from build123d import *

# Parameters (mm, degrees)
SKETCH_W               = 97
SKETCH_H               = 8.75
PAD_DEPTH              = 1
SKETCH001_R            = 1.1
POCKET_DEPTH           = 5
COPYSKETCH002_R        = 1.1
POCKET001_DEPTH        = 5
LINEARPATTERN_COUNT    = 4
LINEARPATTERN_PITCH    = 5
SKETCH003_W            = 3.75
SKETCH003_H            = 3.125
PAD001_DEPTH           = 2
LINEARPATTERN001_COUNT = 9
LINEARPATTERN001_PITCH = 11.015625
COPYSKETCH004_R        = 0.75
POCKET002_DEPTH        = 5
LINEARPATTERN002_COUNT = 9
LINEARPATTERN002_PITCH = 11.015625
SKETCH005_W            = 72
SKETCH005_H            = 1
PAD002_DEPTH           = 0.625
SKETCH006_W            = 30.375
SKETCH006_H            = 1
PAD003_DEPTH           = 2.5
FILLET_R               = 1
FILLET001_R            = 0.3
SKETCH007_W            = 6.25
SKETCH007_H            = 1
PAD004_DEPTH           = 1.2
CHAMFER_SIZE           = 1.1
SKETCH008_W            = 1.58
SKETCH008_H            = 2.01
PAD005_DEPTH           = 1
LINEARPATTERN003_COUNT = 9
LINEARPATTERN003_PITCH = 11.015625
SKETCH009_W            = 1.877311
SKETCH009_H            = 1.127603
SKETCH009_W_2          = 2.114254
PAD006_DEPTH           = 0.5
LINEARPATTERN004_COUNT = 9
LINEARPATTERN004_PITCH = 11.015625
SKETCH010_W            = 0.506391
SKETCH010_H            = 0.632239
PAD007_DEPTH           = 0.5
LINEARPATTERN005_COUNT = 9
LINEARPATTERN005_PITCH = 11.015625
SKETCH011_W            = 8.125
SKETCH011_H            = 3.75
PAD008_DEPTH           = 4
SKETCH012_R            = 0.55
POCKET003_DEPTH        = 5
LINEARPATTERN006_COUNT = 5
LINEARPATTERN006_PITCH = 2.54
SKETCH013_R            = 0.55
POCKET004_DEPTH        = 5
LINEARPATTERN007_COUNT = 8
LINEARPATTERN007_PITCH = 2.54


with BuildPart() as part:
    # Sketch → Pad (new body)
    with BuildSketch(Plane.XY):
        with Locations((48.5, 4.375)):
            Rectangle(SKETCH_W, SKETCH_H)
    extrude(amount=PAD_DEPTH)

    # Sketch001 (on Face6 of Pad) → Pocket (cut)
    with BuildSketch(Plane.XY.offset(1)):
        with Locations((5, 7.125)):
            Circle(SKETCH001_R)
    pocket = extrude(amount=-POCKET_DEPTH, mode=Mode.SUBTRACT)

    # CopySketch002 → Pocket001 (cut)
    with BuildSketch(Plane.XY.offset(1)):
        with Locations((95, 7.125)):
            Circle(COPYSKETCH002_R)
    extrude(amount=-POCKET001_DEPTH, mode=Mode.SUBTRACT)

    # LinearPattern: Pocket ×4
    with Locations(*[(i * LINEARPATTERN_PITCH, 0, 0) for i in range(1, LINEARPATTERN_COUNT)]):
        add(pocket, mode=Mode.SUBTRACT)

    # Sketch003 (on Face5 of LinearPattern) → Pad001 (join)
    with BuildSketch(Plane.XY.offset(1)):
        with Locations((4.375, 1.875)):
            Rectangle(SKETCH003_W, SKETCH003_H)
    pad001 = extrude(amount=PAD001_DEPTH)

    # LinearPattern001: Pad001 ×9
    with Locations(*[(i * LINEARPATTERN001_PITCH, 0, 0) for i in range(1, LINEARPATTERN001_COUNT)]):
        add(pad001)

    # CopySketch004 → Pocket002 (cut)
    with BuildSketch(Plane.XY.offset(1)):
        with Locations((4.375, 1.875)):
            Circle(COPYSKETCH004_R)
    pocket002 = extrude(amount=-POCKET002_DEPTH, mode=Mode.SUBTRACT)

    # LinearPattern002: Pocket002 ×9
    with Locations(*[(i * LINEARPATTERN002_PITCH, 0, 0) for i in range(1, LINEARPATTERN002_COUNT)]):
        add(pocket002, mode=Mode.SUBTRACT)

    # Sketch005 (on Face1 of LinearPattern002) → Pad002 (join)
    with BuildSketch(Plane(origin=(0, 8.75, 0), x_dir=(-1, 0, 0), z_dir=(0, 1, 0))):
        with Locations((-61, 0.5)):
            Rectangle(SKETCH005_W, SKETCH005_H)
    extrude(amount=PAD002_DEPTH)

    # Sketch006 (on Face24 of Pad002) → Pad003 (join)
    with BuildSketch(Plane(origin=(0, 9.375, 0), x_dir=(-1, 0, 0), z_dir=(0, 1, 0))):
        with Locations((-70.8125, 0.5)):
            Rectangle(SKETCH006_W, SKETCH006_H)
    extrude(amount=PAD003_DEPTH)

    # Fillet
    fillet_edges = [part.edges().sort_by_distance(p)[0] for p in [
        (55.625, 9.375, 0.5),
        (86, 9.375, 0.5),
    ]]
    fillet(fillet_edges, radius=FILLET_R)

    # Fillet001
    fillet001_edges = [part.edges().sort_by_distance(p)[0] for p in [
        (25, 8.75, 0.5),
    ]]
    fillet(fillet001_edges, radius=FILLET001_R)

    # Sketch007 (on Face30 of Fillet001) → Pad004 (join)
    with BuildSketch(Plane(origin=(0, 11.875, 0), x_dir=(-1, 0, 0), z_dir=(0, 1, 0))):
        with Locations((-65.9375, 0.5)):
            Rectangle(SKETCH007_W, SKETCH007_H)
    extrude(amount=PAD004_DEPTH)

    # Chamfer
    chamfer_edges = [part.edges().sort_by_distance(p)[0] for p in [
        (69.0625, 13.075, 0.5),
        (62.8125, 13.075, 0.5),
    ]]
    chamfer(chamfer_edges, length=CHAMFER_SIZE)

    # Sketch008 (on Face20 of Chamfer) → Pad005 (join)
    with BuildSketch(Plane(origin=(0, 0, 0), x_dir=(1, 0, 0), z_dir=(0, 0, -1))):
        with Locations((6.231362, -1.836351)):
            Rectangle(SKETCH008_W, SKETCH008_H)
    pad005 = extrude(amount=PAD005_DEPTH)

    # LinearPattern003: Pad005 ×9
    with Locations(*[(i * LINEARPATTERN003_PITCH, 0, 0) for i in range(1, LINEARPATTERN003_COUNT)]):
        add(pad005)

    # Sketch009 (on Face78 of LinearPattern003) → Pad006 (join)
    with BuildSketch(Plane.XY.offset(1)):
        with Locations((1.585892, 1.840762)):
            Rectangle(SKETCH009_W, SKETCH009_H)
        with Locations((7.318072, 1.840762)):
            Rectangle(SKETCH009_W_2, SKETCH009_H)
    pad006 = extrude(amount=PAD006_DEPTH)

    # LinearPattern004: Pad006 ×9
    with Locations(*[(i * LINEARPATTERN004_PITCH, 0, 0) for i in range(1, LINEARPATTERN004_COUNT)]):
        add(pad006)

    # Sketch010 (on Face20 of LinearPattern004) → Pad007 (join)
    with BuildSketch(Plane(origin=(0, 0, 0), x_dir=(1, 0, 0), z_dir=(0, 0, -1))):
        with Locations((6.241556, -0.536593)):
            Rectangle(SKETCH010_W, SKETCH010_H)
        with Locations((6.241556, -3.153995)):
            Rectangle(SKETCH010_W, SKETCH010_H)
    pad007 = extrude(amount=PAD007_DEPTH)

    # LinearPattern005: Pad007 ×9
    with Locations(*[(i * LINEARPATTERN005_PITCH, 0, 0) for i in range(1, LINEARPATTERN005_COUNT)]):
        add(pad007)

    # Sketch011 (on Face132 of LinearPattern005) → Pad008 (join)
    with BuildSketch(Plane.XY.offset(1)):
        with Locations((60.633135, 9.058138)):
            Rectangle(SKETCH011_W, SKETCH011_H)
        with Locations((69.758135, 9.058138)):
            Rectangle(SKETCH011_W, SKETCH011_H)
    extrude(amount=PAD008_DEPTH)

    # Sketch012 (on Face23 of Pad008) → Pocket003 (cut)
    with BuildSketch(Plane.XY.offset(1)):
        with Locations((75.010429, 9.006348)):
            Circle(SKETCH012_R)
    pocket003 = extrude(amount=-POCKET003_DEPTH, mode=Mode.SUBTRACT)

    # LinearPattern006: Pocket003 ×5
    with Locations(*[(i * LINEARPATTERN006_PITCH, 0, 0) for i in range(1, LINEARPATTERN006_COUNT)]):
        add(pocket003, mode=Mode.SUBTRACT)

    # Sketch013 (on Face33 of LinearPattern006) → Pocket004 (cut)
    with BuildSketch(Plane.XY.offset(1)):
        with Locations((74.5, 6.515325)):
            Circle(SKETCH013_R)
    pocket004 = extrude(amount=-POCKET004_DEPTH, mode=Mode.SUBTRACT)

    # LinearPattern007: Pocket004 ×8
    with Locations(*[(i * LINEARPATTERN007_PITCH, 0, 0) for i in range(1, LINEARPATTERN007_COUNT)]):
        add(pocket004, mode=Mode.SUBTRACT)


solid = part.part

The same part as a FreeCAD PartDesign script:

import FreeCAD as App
import Part
import Sketcher
from FreeCAD import Vector
Q = App.Units.Quantity


def edges_at(feature, points):
    """Names of the edges that pass closest to the given points."""
    edges = feature.Shape.Edges
    near = lambda p: min(range(len(edges)), key=lambda i: edges[i].distToShape(Part.Vertex(*p))[0])
    return sorted({f"Edge{near(p) + 1}" for p in points})

doc = App.newDocument("Part")
body = doc.addObject("PartDesign::Body", "Body")

sketch1 = body.newObject("Sketcher::SketchObject", "Sketch")
sketch1.AttachmentSupport = (doc.getObject("XY_Plane"), [""])
sketch1.MapMode = "FlatFace"
sketch1.addGeometry(Part.LineSegment(Vector(0, 8.75, 0), Vector(0, 0, 0)), False)
sketch1.addGeometry(Part.LineSegment(Vector(0, 0, 0), Vector(97, 0, 0)), False)
sketch1.addGeometry(Part.LineSegment(Vector(97, 0, 0), Vector(97, 8.75, 0)), False)
sketch1.addGeometry(Part.LineSegment(Vector(97, 8.75, 0), Vector(0, 8.75, 0)), False)
sketch1.addConstraint(Sketcher.Constraint("Coincident", 0, 2, 1, 1))
sketch1.addConstraint(Sketcher.Constraint("Coincident", 1, 2, 2, 1))
sketch1.addConstraint(Sketcher.Constraint("Coincident", 2, 2, 3, 1))
sketch1.addConstraint(Sketcher.Constraint("Coincident", 3, 2, 0, 1))
sketch1.addConstraint(Sketcher.Constraint("Vertical", 0))
sketch1.addConstraint(Sketcher.Constraint("Horizontal", 1))
sketch1.addConstraint(Sketcher.Constraint("Vertical", 2))
sketch1.addConstraint(Sketcher.Constraint("Horizontal", 3))
sketch1.addConstraint(Sketcher.Constraint("Coincident", 0, 2, -1, 1))
sketch1.addConstraint(Sketcher.Constraint("DistanceX", 1, 1, 1, 2, Q("97 mm")))
sketch1.addConstraint(Sketcher.Constraint("DistanceY", 0, 2, 0, 1, Q("8.75 mm")))
pad1 = body.newObject("PartDesign::Pad", "Pad")
pad1.Profile = sketch1
pad1.Length = 1

sketch2 = body.newObject("Sketcher::SketchObject", "Sketch001")
sketch2.AttachmentSupport = (doc.getObject("XY_Plane"), [""])
sketch2.MapMode = "FlatFace"
sketch2.AttachmentOffset = App.Placement(Vector(0, 0, 1), App.Rotation())
sketch2.addGeometry(Part.Circle(Vector(5, 7.125, 0), Vector(0, 0, 1), 1.1), False)
sketch2.addConstraint(Sketcher.Constraint("Diameter", 0, Q("2.2 mm")))
sketch2.addConstraint(Sketcher.Constraint("DistanceX", -1, 1, 0, 3, Q("5 mm")))
sketch2.addConstraint(Sketcher.Constraint("DistanceY", -1, 1, 0, 3, Q("7.125 mm")))
pocket1 = body.newObject("PartDesign::Pocket", "Pocket")
pocket1.Profile = sketch2
pocket1.Length = 5

sketch3 = body.newObject("Sketcher::SketchObject", "Sketch002")
sketch3.AttachmentSupport = (doc.getObject("XY_Plane"), [""])
sketch3.MapMode = "FlatFace"
sketch3.AttachmentOffset = App.Placement(Vector(0, 0, 1), App.Rotation())
sketch3.addGeometry(Part.Circle(Vector(95, 7.125, 0), Vector(0, 0, 1), 1.1), False)
sketch3.addConstraint(Sketcher.Constraint("Diameter", 0, Q("2.2 mm")))
sketch3.addConstraint(Sketcher.Constraint("DistanceX", -1, 1, 0, 3, Q("95 mm")))
sketch3.addConstraint(Sketcher.Constraint("DistanceY", -1, 1, 0, 3, Q("7.125 mm")))
pocket2 = body.newObject("PartDesign::Pocket", "Pocket001")
pocket2.Profile = sketch3
pocket2.Length = 5
doc.recompute()

linearpattern = body.newObject("PartDesign::LinearPattern", "LinearPattern")
linearpattern.Originals = [pocket1]
linearpattern.Direction = (doc.getObject("X_Axis"), [""])
linearpattern.Mode = "offset"
linearpattern.Offset = 5
linearpattern.Occurrences = 4
body.Tip = linearpattern

sketch4 = body.newObject("Sketcher::SketchObject", "Sketch003")
sketch4.AttachmentSupport = (doc.getObject("XY_Plane"), [""])
sketch4.MapMode = "FlatFace"
sketch4.AttachmentOffset = App.Placement(Vector(0, 0, 1), App.Rotation())
sketch4.addGeometry(Part.LineSegment(Vector(2.5, 3.4375, 0), Vector(2.5, 0.3125, 0)), False)
sketch4.addGeometry(Part.LineSegment(Vector(2.5, 0.3125, 0), Vector(6.25, 0.3125, 0)), False)
sketch4.addGeometry(Part.LineSegment(Vector(6.25, 0.3125, 0), Vector(6.25, 3.4375, 0)), False)
sketch4.addGeometry(Part.LineSegment(Vector(6.25, 3.4375, 0), Vector(2.5, 3.4375, 0)), False)
sketch4.addConstraint(Sketcher.Constraint("Coincident", 0, 2, 1, 1))
sketch4.addConstraint(Sketcher.Constraint("Coincident", 1, 2, 2, 1))
sketch4.addConstraint(Sketcher.Constraint("Coincident", 2, 2, 3, 1))
sketch4.addConstraint(Sketcher.Constraint("Coincident", 3, 2, 0, 1))
sketch4.addConstraint(Sketcher.Constraint("Vertical", 0))
sketch4.addConstraint(Sketcher.Constraint("Horizontal", 1))
sketch4.addConstraint(Sketcher.Constraint("Vertical", 2))
sketch4.addConstraint(Sketcher.Constraint("Horizontal", 3))
sketch4.addConstraint(Sketcher.Constraint("DistanceX", 1, 1, 1, 2, Q("3.75 mm")))
sketch4.addConstraint(Sketcher.Constraint("DistanceX", -1, 1, 0, 2, Q("2.5 mm")))
sketch4.addConstraint(Sketcher.Constraint("DistanceY", 0, 2, 0, 1, Q("3.125 mm")))
sketch4.addConstraint(Sketcher.Constraint("DistanceY", -1, 1, 0, 2, Q("0.3125 mm")))
pad2 = body.newObject("PartDesign::Pad", "Pad001")
pad2.Profile = sketch4
pad2.Length = 2
doc.recompute()

linearpattern2 = body.newObject("PartDesign::LinearPattern", "LinearPattern001")
linearpattern2.Originals = [pad2]
linearpattern2.Direction = (doc.getObject("X_Axis"), [""])
linearpattern2.Mode = "offset"
linearpattern2.Offset = 11.015625
linearpattern2.Occurrences = 9
body.Tip = linearpattern2

sketch5 = body.newObject("Sketcher::SketchObject", "Sketch004")
sketch5.AttachmentSupport = (doc.getObject("XY_Plane"), [""])
sketch5.MapMode = "FlatFace"
sketch5.AttachmentOffset = App.Placement(Vector(0, 0, 1), App.Rotation())
sketch5.addGeometry(Part.Circle(Vector(4.375, 1.875, 0), Vector(0, 0, 1), 0.75), False)
sketch5.addConstraint(Sketcher.Constraint("Diameter", 0, Q("1.5 mm")))
sketch5.addConstraint(Sketcher.Constraint("DistanceX", -1, 1, 0, 3, Q("4.375 mm")))
sketch5.addConstraint(Sketcher.Constraint("DistanceY", -1, 1, 0, 3, Q("1.875 mm")))
pocket3 = body.newObject("PartDesign::Pocket", "Pocket002")
pocket3.Profile = sketch5
pocket3.Length = 5
doc.recompute()

linearpattern3 = body.newObject("PartDesign::LinearPattern", "LinearPattern002")
linearpattern3.Originals = [pocket3]
linearpattern3.Direction = (doc.getObject("X_Axis"), [""])
linearpattern3.Mode = "offset"
linearpattern3.Offset = 11.015625
linearpattern3.Occurrences = 9
body.Tip = linearpattern3

sketch6 = body.newObject("Sketcher::SketchObject", "Sketch005")
sketch6.AttachmentSupport = (doc.getObject("XZ_Plane"), [""])
sketch6.MapMode = "FlatFace"
sketch6.AttachmentOffset = App.Placement(Vector(0, 0, -8.75), App.Rotation())
sketch6.addGeometry(Part.LineSegment(Vector(97, 1, 0), Vector(97, 0, 0)), False)
sketch6.addGeometry(Part.LineSegment(Vector(97, 0, 0), Vector(25, 0, 0)), False)
sketch6.addGeometry(Part.LineSegment(Vector(25, 0, 0), Vector(25, 1, 0)), False)
sketch6.addGeometry(Part.LineSegment(Vector(25, 1, 0), Vector(97, 1, 0)), False)
sketch6.addConstraint(Sketcher.Constraint("Coincident", 0, 2, 1, 1))
sketch6.addConstraint(Sketcher.Constraint("Coincident", 1, 2, 2, 1))
sketch6.addConstraint(Sketcher.Constraint("Coincident", 2, 2, 3, 1))
sketch6.addConstraint(Sketcher.Constraint("Coincident", 3, 2, 0, 1))
sketch6.addConstraint(Sketcher.Constraint("Vertical", 0))
sketch6.addConstraint(Sketcher.Constraint("Horizontal", 1))
sketch6.addConstraint(Sketcher.Constraint("Vertical", 2))
sketch6.addConstraint(Sketcher.Constraint("Horizontal", 3))
sketch6.addConstraint(Sketcher.Constraint("PointOnObject", 0, 2, -1))
sketch6.addConstraint(Sketcher.Constraint("DistanceX", 1, 2, 1, 1, Q("72 mm")))
sketch6.addConstraint(Sketcher.Constraint("DistanceY", 0, 2, 0, 1, Q("1 mm")))
sketch6.addConstraint(Sketcher.Constraint("DistanceX", -1, 1, 0, 2, Q("97 mm")))
pad3 = body.newObject("PartDesign::Pad", "Pad002")
pad3.Profile = sketch6
pad3.Length = 0.625
pad3.Reversed = True

sketch7 = body.newObject("Sketcher::SketchObject", "Sketch006")
sketch7.AttachmentSupport = (doc.getObject("XZ_Plane"), [""])
sketch7.MapMode = "FlatFace"
sketch7.AttachmentOffset = App.Placement(Vector(0, 0, -9.375), App.Rotation())
sketch7.addGeometry(Part.LineSegment(Vector(86, 1, 0), Vector(86, 0, 0)), False)
sketch7.addGeometry(Part.LineSegment(Vector(86, 0, 0), Vector(55.625, 0, 0)), False)
sketch7.addGeometry(Part.LineSegment(Vector(55.625, 0, 0), Vector(55.625, 1, 0)), False)
sketch7.addGeometry(Part.LineSegment(Vector(55.625, 1, 0), Vector(86, 1, 0)), False)
sketch7.addConstraint(Sketcher.Constraint("Coincident", 0, 2, 1, 1))
sketch7.addConstraint(Sketcher.Constraint("Coincident", 1, 2, 2, 1))
sketch7.addConstraint(Sketcher.Constraint("Coincident", 2, 2, 3, 1))
sketch7.addConstraint(Sketcher.Constraint("Coincident", 3, 2, 0, 1))
sketch7.addConstraint(Sketcher.Constraint("Vertical", 0))
sketch7.addConstraint(Sketcher.Constraint("Horizontal", 1))
sketch7.addConstraint(Sketcher.Constraint("Vertical", 2))
sketch7.addConstraint(Sketcher.Constraint("Horizontal", 3))
sketch7.addConstraint(Sketcher.Constraint("PointOnObject", 0, 2, -1))
sketch7.addConstraint(Sketcher.Constraint("DistanceY", 0, 2, 0, 1, Q("1 mm")))
sketch7.addConstraint(Sketcher.Constraint("DistanceX", -1, 1, 0, 2, Q("86 mm")))
sketch7.addConstraint(Sketcher.Constraint("DistanceX", 1, 2, 1, 1, Q("30.375 mm")))
pad4 = body.newObject("PartDesign::Pad", "Pad003")
pad4.Profile = sketch7
pad4.Length = 2.5
pad4.Reversed = True
doc.recompute()

fillet = body.newObject("PartDesign::Fillet", "Fillet")
fillet.Base = (pad4, edges_at(pad4, [(55.625, 9.375, 0.5), (86, 9.375, 0.5)]))
fillet.Radius = 1
doc.recompute()

fillet2 = body.newObject("PartDesign::Fillet", "Fillet001")
fillet2.Base = (fillet, edges_at(fillet, [(25, 8.75, 0.5)]))
fillet2.Radius = 0.3

sketch8 = body.newObject("Sketcher::SketchObject", "Sketch007")
sketch8.AttachmentSupport = (doc.getObject("XZ_Plane"), [""])
sketch8.MapMode = "FlatFace"
sketch8.AttachmentOffset = App.Placement(Vector(0, 0, -11.875), App.Rotation())
sketch8.addGeometry(Part.LineSegment(Vector(69.0625, 1, 0), Vector(69.0625, 0, 0)), False)
sketch8.addGeometry(Part.LineSegment(Vector(69.0625, 0, 0), Vector(62.8125, 0, 0)), False)
sketch8.addGeometry(Part.LineSegment(Vector(62.8125, 0, 0), Vector(62.8125, 1, 0)), False)
sketch8.addGeometry(Part.LineSegment(Vector(62.8125, 1, 0), Vector(69.0625, 1, 0)), False)
sketch8.addConstraint(Sketcher.Constraint("Coincident", 0, 2, 1, 1))
sketch8.addConstraint(Sketcher.Constraint("Coincident", 1, 2, 2, 1))
sketch8.addConstraint(Sketcher.Constraint("Coincident", 2, 2, 3, 1))
sketch8.addConstraint(Sketcher.Constraint("Coincident", 3, 2, 0, 1))
sketch8.addConstraint(Sketcher.Constraint("Vertical", 0))
sketch8.addConstraint(Sketcher.Constraint("Horizontal", 1))
sketch8.addConstraint(Sketcher.Constraint("Vertical", 2))
sketch8.addConstraint(Sketcher.Constraint("Horizontal", 3))
sketch8.addConstraint(Sketcher.Constraint("PointOnObject", 0, 2, -1))
sketch8.addConstraint(Sketcher.Constraint("DistanceY", 0, 2, 0, 1, Q("1 mm")))
sketch8.addConstraint(Sketcher.Constraint("DistanceX", 1, 2, 1, 1, Q("6.25 mm")))
sketch8.addConstraint(Sketcher.Constraint("DistanceX", -1, 1, 0, 2, Q("69.0625 mm")))
pad5 = body.newObject("PartDesign::Pad", "Pad004")
pad5.Profile = sketch8
pad5.Length = 1.2
pad5.Reversed = True
doc.recompute()

chamfer = body.newObject("PartDesign::Chamfer", "Chamfer")
chamfer.Base = (pad5, edges_at(pad5, [(69.062, 13.075, 0.5), (62.812, 13.075, 0.5)]))
chamfer.Size = 1.1

sketch9 = body.newObject("Sketcher::SketchObject", "Sketch008")
sketch9.AttachmentSupport = (doc.getObject("XY_Plane"), [""])
sketch9.MapMode = "FlatFace"
sketch9.addGeometry(Part.LineSegment(Vector(5.441362, 0.831351, 0), Vector(5.441362, 2.841351, 0)), False)
sketch9.addGeometry(Part.LineSegment(Vector(5.441362, 2.841351, 0), Vector(7.021362, 2.841351, 0)), False)
sketch9.addGeometry(Part.LineSegment(Vector(7.021362, 2.841351, 0), Vector(7.021362, 0.831351, 0)), False)
sketch9.addGeometry(Part.LineSegment(Vector(7.021362, 0.831351, 0), Vector(5.441362, 0.831351, 0)), False)
sketch9.addConstraint(Sketcher.Constraint("Coincident", 0, 2, 1, 1))
sketch9.addConstraint(Sketcher.Constraint("Coincident", 1, 2, 2, 1))
sketch9.addConstraint(Sketcher.Constraint("Coincident", 2, 2, 3, 1))
sketch9.addConstraint(Sketcher.Constraint("Coincident", 3, 2, 0, 1))
sketch9.addConstraint(Sketcher.Constraint("Vertical", 0))
sketch9.addConstraint(Sketcher.Constraint("Horizontal", 1))
sketch9.addConstraint(Sketcher.Constraint("Vertical", 2))
sketch9.addConstraint(Sketcher.Constraint("Horizontal", 3))
sketch9.addConstraint(Sketcher.Constraint("DistanceX", 1, 1, 1, 2, Q("1.58 mm")))
sketch9.addConstraint(Sketcher.Constraint("DistanceY", 0, 1, 0, 2, Q("2.01 mm")))
sketch9.addConstraint(Sketcher.Constraint("DistanceX", -1, 1, 0, 2, Q("5.441362 mm")))
sketch9.addConstraint(Sketcher.Constraint("DistanceY", -1, 1, 0, 2, Q("2.841351 mm")))
pad6 = body.newObject("PartDesign::Pad", "Pad005")
pad6.Profile = sketch9
pad6.Length = 1
pad6.Reversed = True
doc.recompute()

linearpattern4 = body.newObject("PartDesign::LinearPattern", "LinearPattern003")
linearpattern4.Originals = [pad6]
linearpattern4.Direction = (doc.getObject("X_Axis"), [""])
linearpattern4.Mode = "offset"
linearpattern4.Offset = 11.015625
linearpattern4.Occurrences = 9
body.Tip = linearpattern4

sketch10 = body.newObject("Sketcher::SketchObject", "Sketch009")
sketch10.AttachmentSupport = (doc.getObject("XY_Plane"), [""])
sketch10.MapMode = "FlatFace"
sketch10.AttachmentOffset = App.Placement(Vector(0, 0, 1), App.Rotation())
sketch10.addGeometry(Part.LineSegment(Vector(0.647236, 2.404564, 0), Vector(0.647236, 1.27696, 0)), False)
sketch10.addGeometry(Part.LineSegment(Vector(0.647236, 1.27696, 0), Vector(2.524548, 1.27696, 0)), False)
sketch10.addGeometry(Part.LineSegment(Vector(2.524548, 1.27696, 0), Vector(2.524548, 2.404564, 0)), False)
sketch10.addGeometry(Part.LineSegment(Vector(2.524548, 2.404564, 0), Vector(0.647236, 2.404564, 0)), False)
sketch10.addGeometry(Part.LineSegment(Vector(6.260945, 2.404564, 0), Vector(6.260945, 1.27696, 0)), False)
sketch10.addGeometry(Part.LineSegment(Vector(6.260945, 1.27696, 0), Vector(8.375199, 1.27696, 0)), False)
sketch10.addGeometry(Part.LineSegment(Vector(8.375199, 1.27696, 0), Vector(8.375199, 2.404564, 0)), False)
sketch10.addGeometry(Part.LineSegment(Vector(8.375199, 2.404564, 0), Vector(6.260945, 2.404564, 0)), False)
sketch10.addConstraint(Sketcher.Constraint("Coincident", 0, 2, 1, 1))
sketch10.addConstraint(Sketcher.Constraint("Coincident", 1, 2, 2, 1))
sketch10.addConstraint(Sketcher.Constraint("Coincident", 2, 2, 3, 1))
sketch10.addConstraint(Sketcher.Constraint("Coincident", 3, 2, 0, 1))
sketch10.addConstraint(Sketcher.Constraint("Coincident", 4, 2, 5, 1))
sketch10.addConstraint(Sketcher.Constraint("Coincident", 5, 2, 6, 1))
sketch10.addConstraint(Sketcher.Constraint("Coincident", 6, 2, 7, 1))
sketch10.addConstraint(Sketcher.Constraint("Coincident", 7, 2, 4, 1))
sketch10.addConstraint(Sketcher.Constraint("Vertical", 0))
sketch10.addConstraint(Sketcher.Constraint("Horizontal", 1))
sketch10.addConstraint(Sketcher.Constraint("Vertical", 2))
sketch10.addConstraint(Sketcher.Constraint("Horizontal", 3))
sketch10.addConstraint(Sketcher.Constraint("Vertical", 4))
sketch10.addConstraint(Sketcher.Constraint("Horizontal", 5))
sketch10.addConstraint(Sketcher.Constraint("Vertical", 6))
sketch10.addConstraint(Sketcher.Constraint("Horizontal", 7))
sketch10.addConstraint(Sketcher.Constraint("Horizontal", 1, 2, 4, 2))
sketch10.addConstraint(Sketcher.Constraint("Horizontal", 3, 2, 6, 2))
sketch10.addConstraint(Sketcher.Constraint("DistanceX", 1, 1, 1, 2, Q("1.877311 mm")))
sketch10.addConstraint(Sketcher.Constraint("DistanceX", -1, 1, 5, 2, Q("8.375199 mm")))
sketch10.addConstraint(Sketcher.Constraint("DistanceX", 5, 1, 5, 2, Q("2.114254 mm")))
sketch10.addConstraint(Sketcher.Constraint("DistanceY", 0, 2, 0, 1, Q("1.127603 mm")))
sketch10.addConstraint(Sketcher.Constraint("DistanceY", -1, 1, 0, 2, Q("1.27696 mm")))
sketch10.addConstraint(Sketcher.Constraint("DistanceX", 0, 2, 4, 2, Q("5.613709 mm")))
pad7 = body.newObject("PartDesign::Pad", "Pad006")
pad7.Profile = sketch10
pad7.Length = 0.5
doc.recompute()

linearpattern5 = body.newObject("PartDesign::LinearPattern", "LinearPattern004")
linearpattern5.Originals = [pad7]
linearpattern5.Direction = (doc.getObject("X_Axis"), [""])
linearpattern5.Mode = "offset"
linearpattern5.Offset = 11.015625
linearpattern5.Occurrences = 9
body.Tip = linearpattern5

sketch11 = body.newObject("Sketcher::SketchObject", "Sketch010")
sketch11.AttachmentSupport = (doc.getObject("XY_Plane"), [""])
sketch11.MapMode = "FlatFace"
sketch11.addGeometry(Part.LineSegment(Vector(5.98836, 0.220473, 0), Vector(5.98836, 0.852712, 0)), False)
sketch11.addGeometry(Part.LineSegment(Vector(5.98836, 0.852712, 0), Vector(6.494751, 0.852712, 0)), False)
sketch11.addGeometry(Part.LineSegment(Vector(6.494751, 0.852712, 0), Vector(6.494751, 0.220473, 0)), False)
sketch11.addGeometry(Part.LineSegment(Vector(6.494751, 0.220473, 0), Vector(5.98836, 0.220473, 0)), False)
sketch11.addGeometry(Part.LineSegment(Vector(5.98836, 2.837875, 0), Vector(5.98836, 3.470115, 0)), False)
sketch11.addGeometry(Part.LineSegment(Vector(5.98836, 3.470115, 0), Vector(6.494751, 3.470115, 0)), False)
sketch11.addGeometry(Part.LineSegment(Vector(6.494751, 3.470115, 0), Vector(6.494751, 2.837875, 0)), False)
sketch11.addGeometry(Part.LineSegment(Vector(6.494751, 2.837875, 0), Vector(5.98836, 2.837875, 0)), False)
sketch11.addConstraint(Sketcher.Constraint("Coincident", 0, 2, 1, 1))
sketch11.addConstraint(Sketcher.Constraint("Coincident", 1, 2, 2, 1))
sketch11.addConstraint(Sketcher.Constraint("Coincident", 2, 2, 3, 1))
sketch11.addConstraint(Sketcher.Constraint("Coincident", 3, 2, 0, 1))
sketch11.addConstraint(Sketcher.Constraint("Coincident", 4, 2, 5, 1))
sketch11.addConstraint(Sketcher.Constraint("Coincident", 5, 2, 6, 1))
sketch11.addConstraint(Sketcher.Constraint("Coincident", 6, 2, 7, 1))
sketch11.addConstraint(Sketcher.Constraint("Coincident", 7, 2, 4, 1))
sketch11.addConstraint(Sketcher.Constraint("Vertical", 0))
sketch11.addConstraint(Sketcher.Constraint("Horizontal", 1))
sketch11.addConstraint(Sketcher.Constraint("Vertical", 2))
sketch11.addConstraint(Sketcher.Constraint("Horizontal", 3))
sketch11.addConstraint(Sketcher.Constraint("Vertical", 4))
sketch11.addConstraint(Sketcher.Constraint("Horizontal", 5))
sketch11.addConstraint(Sketcher.Constraint("Vertical", 6))
sketch11.addConstraint(Sketcher.Constraint("Horizontal", 7))
sketch11.addConstraint(Sketcher.Constraint("Vertical", 3, 2, 4, 2))
sketch11.addConstraint(Sketcher.Constraint("Vertical", 2, 2, 5, 2))
sketch11.addConstraint(Sketcher.Constraint("Equal", 2, 4))
sketch11.addConstraint(Sketcher.Constraint("DistanceX", 1, 1, 1, 2, Q("0.506391 mm")))
sketch11.addConstraint(Sketcher.Constraint("DistanceY", 0, 1, 0, 2, Q("0.632239 mm")))
sketch11.addConstraint(Sketcher.Constraint("DistanceX", -1, 1, 0, 2, Q("5.98836 mm")))
sketch11.addConstraint(Sketcher.Constraint("DistanceY", 3, 2, 4, 2, Q("3.249641 mm")))
sketch11.addConstraint(Sketcher.Constraint("DistanceY", -1, 1, 0, 2, Q("0.852712 mm")))
pad8 = body.newObject("PartDesign::Pad", "Pad007")
pad8.Profile = sketch11
pad8.Length = 0.5
pad8.Reversed = True
doc.recompute()

linearpattern6 = body.newObject("PartDesign::LinearPattern", "LinearPattern005")
linearpattern6.Originals = [pad8]
linearpattern6.Direction = (doc.getObject("X_Axis"), [""])
linearpattern6.Mode = "offset"
linearpattern6.Offset = 11.015625
linearpattern6.Occurrences = 9
body.Tip = linearpattern6

sketch12 = body.newObject("Sketcher::SketchObject", "Sketch011")
sketch12.AttachmentSupport = (doc.getObject("XY_Plane"), [""])
sketch12.MapMode = "FlatFace"
sketch12.AttachmentOffset = App.Placement(Vector(0, 0, 1), App.Rotation())
sketch12.addGeometry(Part.LineSegment(Vector(56.570635, 10.933138, 0), Vector(56.570635, 7.183138, 0)), False)
sketch12.addGeometry(Part.LineSegment(Vector(56.570635, 7.183138, 0), Vector(64.695635, 7.183138, 0)), False)
sketch12.addGeometry(Part.LineSegment(Vector(64.695635, 7.183138, 0), Vector(64.695635, 10.933138, 0)), False)
sketch12.addGeometry(Part.LineSegment(Vector(64.695635, 10.933138, 0), Vector(56.570635, 10.933138, 0)), False)
sketch12.addGeometry(Part.LineSegment(Vector(65.695635, 10.933138, 0), Vector(65.695635, 7.183138, 0)), False)
sketch12.addGeometry(Part.LineSegment(Vector(65.695635, 7.183138, 0), Vector(73.820635, 7.183138, 0)), False)
sketch12.addGeometry(Part.LineSegment(Vector(73.820635, 7.183138, 0), Vector(73.820635, 10.933138, 0)), False)
sketch12.addGeometry(Part.LineSegment(Vector(73.820635, 10.933138, 0), Vector(65.695635, 10.933138, 0)), False)
sketch12.addConstraint(Sketcher.Constraint("Coincident", 0, 2, 1, 1))
sketch12.addConstraint(Sketcher.Constraint("Coincident", 1, 2, 2, 1))
sketch12.addConstraint(Sketcher.Constraint("Coincident", 2, 2, 3, 1))
sketch12.addConstraint(Sketcher.Constraint("Coincident", 3, 2, 0, 1))
sketch12.addConstraint(Sketcher.Constraint("Coincident", 4, 2, 5, 1))
sketch12.addConstraint(Sketcher.Constraint("Coincident", 5, 2, 6, 1))
sketch12.addConstraint(Sketcher.Constraint("Coincident", 6, 2, 7, 1))
sketch12.addConstraint(Sketcher.Constraint("Coincident", 7, 2, 4, 1))
sketch12.addConstraint(Sketcher.Constraint("Vertical", 0))
sketch12.addConstraint(Sketcher.Constraint("Horizontal", 1))
sketch12.addConstraint(Sketcher.Constraint("Vertical", 2))
sketch12.addConstraint(Sketcher.Constraint("Horizontal", 3))
sketch12.addConstraint(Sketcher.Constraint("Vertical", 4))
sketch12.addConstraint(Sketcher.Constraint("Horizontal", 5))
sketch12.addConstraint(Sketcher.Constraint("Vertical", 6))
sketch12.addConstraint(Sketcher.Constraint("Horizontal", 7))
sketch12.addConstraint(Sketcher.Constraint("Horizontal", 1, 2, 4, 2))
sketch12.addConstraint(Sketcher.Constraint("Horizontal", 3, 2, 6, 2))
sketch12.addConstraint(Sketcher.Constraint("Equal", 3, 5))
sketch12.addConstraint(Sketcher.Constraint("DistanceX", 1, 2, 4, 2, Q("1 mm")))
sketch12.addConstraint(Sketcher.Constraint("DistanceY", 0, 2, 0, 1, Q("3.75 mm")))
sketch12.addConstraint(Sketcher.Constraint("DistanceX", 1, 1, 1, 2, Q("8.125 mm")))
sketch12.addConstraint(Sketcher.Constraint("DistanceX", -1, 1, 0, 2, Q("56.570635 mm")))
sketch12.addConstraint(Sketcher.Constraint("DistanceY", -1, 1, 0, 2, Q("7.183138 mm")))
pad9 = body.newObject("PartDesign::Pad", "Pad008")
pad9.Profile = sketch12
pad9.Length = 4

sketch13 = body.newObject("Sketcher::SketchObject", "Sketch012")
sketch13.AttachmentSupport = (doc.getObject("XY_Plane"), [""])
sketch13.MapMode = "FlatFace"
sketch13.AttachmentOffset = App.Placement(Vector(0, 0, 1), App.Rotation())
sketch13.addGeometry(Part.Circle(Vector(75.010429, 9.006348, 0), Vector(0, 0, 1), 0.55), False)
sketch13.addConstraint(Sketcher.Constraint("Diameter", 0, Q("1.1 mm")))
sketch13.addConstraint(Sketcher.Constraint("DistanceX", -1, 1, 0, 3, Q("75.010429 mm")))
sketch13.addConstraint(Sketcher.Constraint("DistanceY", -1, 1, 0, 3, Q("9.006348 mm")))
pocket4 = body.newObject("PartDesign::Pocket", "Pocket003")
pocket4.Profile = sketch13
pocket4.Length = 5
doc.recompute()

linearpattern7 = body.newObject("PartDesign::LinearPattern", "LinearPattern006")
linearpattern7.Originals = [pocket4]
linearpattern7.Direction = (doc.getObject("X_Axis"), [""])
linearpattern7.Mode = "offset"
linearpattern7.Offset = 2.54
linearpattern7.Occurrences = 5
body.Tip = linearpattern7

sketch14 = body.newObject("Sketcher::SketchObject", "Sketch013")
sketch14.AttachmentSupport = (doc.getObject("XY_Plane"), [""])
sketch14.MapMode = "FlatFace"
sketch14.AttachmentOffset = App.Placement(Vector(0, 0, 1), App.Rotation())
sketch14.addGeometry(Part.Circle(Vector(74.5, 6.515325, 0), Vector(0, 0, 1), 0.55), False)
sketch14.addConstraint(Sketcher.Constraint("Diameter", 0, Q("1.1 mm")))
sketch14.addConstraint(Sketcher.Constraint("DistanceX", -1, 1, 0, 3, Q("74.5 mm")))
sketch14.addConstraint(Sketcher.Constraint("DistanceY", -1, 1, 0, 3, Q("6.515325 mm")))
pocket5 = body.newObject("PartDesign::Pocket", "Pocket004")
pocket5.Profile = sketch14
pocket5.Length = 5
doc.recompute()

linearpattern8 = body.newObject("PartDesign::LinearPattern", "LinearPattern007")
linearpattern8.Originals = [pocket5]
linearpattern8.Direction = (doc.getObject("X_Axis"), [""])
linearpattern8.Mode = "offset"
linearpattern8.Offset = 2.54
linearpattern8.Occurrences = 8
body.Tip = linearpattern8

doc.recompute()
